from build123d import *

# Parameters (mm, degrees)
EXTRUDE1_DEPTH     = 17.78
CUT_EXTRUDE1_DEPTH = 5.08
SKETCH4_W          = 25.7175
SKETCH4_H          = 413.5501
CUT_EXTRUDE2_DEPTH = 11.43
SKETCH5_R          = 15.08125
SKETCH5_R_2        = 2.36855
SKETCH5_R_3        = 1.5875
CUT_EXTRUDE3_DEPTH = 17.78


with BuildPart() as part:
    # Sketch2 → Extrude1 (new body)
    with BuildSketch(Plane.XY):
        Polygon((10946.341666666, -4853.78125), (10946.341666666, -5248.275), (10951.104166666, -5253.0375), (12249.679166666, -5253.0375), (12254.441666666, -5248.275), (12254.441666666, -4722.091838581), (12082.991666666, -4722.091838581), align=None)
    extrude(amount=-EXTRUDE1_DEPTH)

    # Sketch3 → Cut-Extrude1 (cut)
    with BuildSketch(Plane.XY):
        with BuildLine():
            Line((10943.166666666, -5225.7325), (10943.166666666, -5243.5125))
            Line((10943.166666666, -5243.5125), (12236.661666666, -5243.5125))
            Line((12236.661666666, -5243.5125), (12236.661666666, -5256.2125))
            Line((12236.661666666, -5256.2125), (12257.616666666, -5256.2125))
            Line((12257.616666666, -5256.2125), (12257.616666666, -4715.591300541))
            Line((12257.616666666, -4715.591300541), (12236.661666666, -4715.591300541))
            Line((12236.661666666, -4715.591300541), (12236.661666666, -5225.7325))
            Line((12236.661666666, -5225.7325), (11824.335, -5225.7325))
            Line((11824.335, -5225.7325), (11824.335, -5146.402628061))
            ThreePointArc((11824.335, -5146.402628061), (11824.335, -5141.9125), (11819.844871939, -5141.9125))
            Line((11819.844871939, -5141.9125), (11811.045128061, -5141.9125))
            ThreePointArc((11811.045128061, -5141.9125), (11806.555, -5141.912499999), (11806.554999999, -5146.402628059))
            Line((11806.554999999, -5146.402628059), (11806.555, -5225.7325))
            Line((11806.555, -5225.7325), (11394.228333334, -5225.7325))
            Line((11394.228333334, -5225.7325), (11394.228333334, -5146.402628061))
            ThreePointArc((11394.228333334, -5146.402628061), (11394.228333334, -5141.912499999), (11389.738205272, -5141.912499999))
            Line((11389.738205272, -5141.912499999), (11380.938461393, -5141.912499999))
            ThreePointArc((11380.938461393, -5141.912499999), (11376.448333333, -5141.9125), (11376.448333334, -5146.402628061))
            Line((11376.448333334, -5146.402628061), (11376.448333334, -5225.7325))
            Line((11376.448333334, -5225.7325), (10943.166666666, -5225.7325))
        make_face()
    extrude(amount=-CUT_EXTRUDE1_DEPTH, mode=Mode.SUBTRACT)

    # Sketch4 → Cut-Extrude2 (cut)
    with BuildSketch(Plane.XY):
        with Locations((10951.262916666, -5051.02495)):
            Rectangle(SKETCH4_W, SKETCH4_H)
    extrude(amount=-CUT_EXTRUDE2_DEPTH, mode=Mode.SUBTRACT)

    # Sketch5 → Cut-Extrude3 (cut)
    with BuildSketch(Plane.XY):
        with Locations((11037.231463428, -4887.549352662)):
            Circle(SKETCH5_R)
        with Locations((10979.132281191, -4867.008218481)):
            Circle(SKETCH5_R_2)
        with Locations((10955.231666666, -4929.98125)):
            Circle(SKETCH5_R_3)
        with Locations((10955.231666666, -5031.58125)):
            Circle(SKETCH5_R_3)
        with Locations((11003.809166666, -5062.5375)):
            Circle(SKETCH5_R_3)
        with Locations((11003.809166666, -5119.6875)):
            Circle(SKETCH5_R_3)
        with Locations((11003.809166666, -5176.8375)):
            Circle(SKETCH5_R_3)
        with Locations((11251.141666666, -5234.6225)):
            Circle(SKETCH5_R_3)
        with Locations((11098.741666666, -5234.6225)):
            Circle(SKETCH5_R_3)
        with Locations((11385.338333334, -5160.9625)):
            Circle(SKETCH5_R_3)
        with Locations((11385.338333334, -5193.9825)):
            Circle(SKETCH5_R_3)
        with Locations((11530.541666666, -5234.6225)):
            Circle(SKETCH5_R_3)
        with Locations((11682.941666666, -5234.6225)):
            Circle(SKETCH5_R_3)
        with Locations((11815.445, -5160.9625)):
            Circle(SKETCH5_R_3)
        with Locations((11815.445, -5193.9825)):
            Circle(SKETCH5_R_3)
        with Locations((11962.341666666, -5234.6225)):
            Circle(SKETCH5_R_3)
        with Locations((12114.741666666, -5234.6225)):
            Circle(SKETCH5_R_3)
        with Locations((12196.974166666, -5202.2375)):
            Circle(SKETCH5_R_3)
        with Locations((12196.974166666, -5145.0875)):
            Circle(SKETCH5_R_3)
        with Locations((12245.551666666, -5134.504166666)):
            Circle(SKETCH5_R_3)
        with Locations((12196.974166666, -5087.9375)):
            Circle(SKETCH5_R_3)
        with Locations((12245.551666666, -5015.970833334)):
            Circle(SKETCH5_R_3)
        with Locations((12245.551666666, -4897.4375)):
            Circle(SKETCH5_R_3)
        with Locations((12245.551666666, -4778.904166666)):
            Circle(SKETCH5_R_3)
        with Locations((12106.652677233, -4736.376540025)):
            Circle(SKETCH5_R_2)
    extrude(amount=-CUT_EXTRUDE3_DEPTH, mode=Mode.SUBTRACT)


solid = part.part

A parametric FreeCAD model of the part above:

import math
import FreeCAD as App
import Part
import Sketcher
from FreeCAD import Vector
Q = App.Units.Quantity

doc = App.newDocument("Part")
body = doc.addObject("PartDesign::Body", "Body")

sketch1 = body.newObject("Sketcher::SketchObject", "Sketch")
sketch1.AttachmentSupport = (doc.getObject("XY_Plane"), [""])
sketch1.MapMode = "FlatFace"
sketch1.addGeometry(Part.LineSegment(Vector(10946.341667, -4853.78125, 0), Vector(10946.341667, -5248.275, 0)), False)
sketch1.addGeometry(Part.LineSegment(Vector(10946.341667, -5248.275, 0), Vector(10951.104167, -5253.0375, 0)), False)
sketch1.addGeometry(Part.LineSegment(Vector(10951.104167, -5253.0375, 0), Vector(12249.679167, -5253.0375, 0)), False)
sketch1.addGeometry(Part.LineSegment(Vector(12249.679167, -5253.0375, 0), Vector(12254.441667, -5248.275, 0)), False)
sketch1.addGeometry(Part.LineSegment(Vector(12254.441667, -5248.275, 0), Vector(12254.441667, -4722.091839, 0)), False)
sketch1.addGeometry(Part.LineSegment(Vector(12254.441667, -4722.091839, 0), Vector(12082.991667, -4722.091839, 0)), False)
sketch1.addGeometry(Part.LineSegment(Vector(12082.991667, -4722.091839, 0), Vector(10946.341667, -4853.78125, 0)), False)
sketch1.addConstraint(Sketcher.Constraint("Coincident", 0, 2, 1, 1))
sketch1.addConstraint(Sketcher.Constraint("Coincident", 1, 2, 2, 1))
sketch1.addConstraint(Sketcher.Constraint("Coincident", 2, 2, 3, 1))
sketch1.addConstraint(Sketcher.Constraint("Coincident", 3, 2, 4, 1))
sketch1.addConstraint(Sketcher.Constraint("Coincident", 4, 2, 5, 1))
sketch1.addConstraint(Sketcher.Constraint("Coincident", 5, 2, 6, 1))
sketch1.addConstraint(Sketcher.Constraint("Coincident", 6, 2, 0, 1))
sketch1.addConstraint(Sketcher.Constraint("Vertical", 0))
sketch1.addConstraint(Sketcher.Constraint("Horizontal", 2))
sketch1.addConstraint(Sketcher.Constraint("Vertical", 4))
sketch1.addConstraint(Sketcher.Constraint("Horizontal", 5))
sketch1.addConstraint(Sketcher.Constraint("Perpendicular", 1, 3))
sketch1.addConstraint(Sketcher.Constraint("Horizontal", 0, 2, 3, 2))
sketch1.addConstraint(Sketcher.Constraint("Equal", 1, 3))
sketch1.addConstraint(Sketcher.Constraint("DistanceX", 5, 2, 5, 1, Q("6.75 in")))
sketch1.addConstraint(Sketcher.Constraint("DistanceX", 0, 2, 3, 2, Q("51.5 in")))
sketch1.addConstraint(Sketcher.Constraint("DistanceX", 2, 1, 2, 2, Q("51.125 in")))
sketch1.addConstraint(Sketcher.Constraint("DistanceY", 0, 2, 0, 1, Q("15.53125 in")))
sketch1.addConstraint(Sketcher.Constraint("DistanceY", 0, 2, -1, 1, Q("206.625 in")))
sketch1.addConstraint(Sketcher.Constraint("DistanceY", 4, 1, 4, 2, 526.183161))
sketch1.addConstraint(Sketcher.Constraint("DistanceX", -1, 1, 0, 2, 10946.341667))
pad1 = body.newObject("PartDesign::Pad", "Pad")
pad1.Profile = sketch1
pad1.Length = Q("0.7 in")
pad1.Reversed = True

sketch2 = body.newObject("Sketcher::SketchObject", "Sketch001")
sketch2.AttachmentSupport = (doc.getObject("XY_Plane"), [""])
sketch2.MapMode = "FlatFace"
sketch2.addGeometry(Part.LineSegment(Vector(10943.166667, -5225.7325, 0), Vector(10943.166667, -5243.5125, 0)), False)
sketch2.addGeometry(Part.LineSegment(Vector(10943.166667, -5243.5125, 0), Vector(12236.661667, -5243.5125, 0)), False)
sketch2.addGeometry(Part.LineSegment(Vector(12236.661667, -5243.5125, 0), Vector(12236.661667, -5256.2125, 0)), False)
sketch2.addGeometry(Part.LineSegment(Vector(12236.661667, -5256.2125, 0), Vector(12257.616667, -5256.2125, 0)), False)
sketch2.addGeometry(Part.LineSegment(Vector(12257.616667, -5256.2125, 0), Vector(12257.616667, -4715.591301, 0)), False)
sketch2.addGeometry(Part.LineSegment(Vector(12257.616667, -4715.591301, 0), Vector(12236.661667, -4715.591301, 0)), False)
sketch2.addGeometry(Part.LineSegment(Vector(12236.661667, -4715.591301, 0), Vector(12236.661667, -5225.7325, 0)), False)
sketch2.addGeometry(Part.LineSegment(Vector(12236.661667, -5225.7325, 0), Vector(11824.335, -5225.7325, 0)), False)
sketch2.addGeometry(Part.LineSegment(Vector(11824.335, -5225.7325, 0), Vector(11824.335, -5146.402628, 0)), False)
sketch2.addGeometry(Part.ArcOfCircle(Part.Circle(Vector(11822.089936, -5144.157564, 0), Vector(0, 0, 1), 3.175), math.radians(-45), math.radians(135)), False)
sketch2.addGeometry(Part.LineSegment(Vector(11819.844872, -5141.9125, 0), Vector(11811.045128, -5141.9125, 0)), False)
sketch2.addGeometry(Part.ArcOfCircle(Part.Circle(Vector(11808.800064, -5144.157564, 0), Vector(0, 0, 1), 3.175), math.radians(45), math.radians(225)), False)
sketch2.addGeometry(Part.LineSegment(Vector(11806.555, -5146.402628, 0), Vector(11806.555, -5225.7325, 0)), False)
sketch2.addGeometry(Part.LineSegment(Vector(11806.555, -5225.7325, 0), Vector(11394.228333, -5225.7325, 0)), False)
sketch2.addGeometry(Part.LineSegment(Vector(11394.228333, -5225.7325, 0), Vector(11394.228333, -5146.402628, 0)), False)
sketch2.addGeometry(Part.ArcOfCircle(Part.Circle(Vector(11391.983269, -5144.157564, 0), Vector(0, 0, 1), 3.175), math.radians(-45), math.radians(135)), False)
sketch2.addGeometry(Part.LineSegment(Vector(11389.738205, -5141.9125, 0), Vector(11380.938461, -5141.9125, 0)), False)
sketch2.addGeometry(Part.ArcOfCircle(Part.Circle(Vector(11378.693397, -5144.157564, 0), Vector(0, 0, 1), 3.175), math.radians(45), math.radians(225)), False)
sketch2.addGeometry(Part.LineSegment(Vector(11376.448333, -5146.402628, 0), Vector(11376.448333, -5225.7325, 0)), False)
sketch2.addGeometry(Part.LineSegment(Vector(11376.448333, -5225.7325, 0), Vector(10943.166667, -5225.7325, 0)), False)
sketch2.addConstraint(Sketcher.Constraint("Coincident", 0, 2, 1, 1))
sketch2.addConstraint(Sketcher.Constraint("Coincident", 1, 2, 2, 1))
sketch2.addConstraint(Sketcher.Constraint("Coincident", 2, 2, 3, 1))
sketch2.addConstraint(Sketcher.Constraint("Coincident", 3, 2, 4, 1))
sketch2.addConstraint(Sketcher.Constraint("Coincident", 4, 2, 5, 1))
sketch2.addConstraint(Sketcher.Constraint("Coincident", 5, 2, 6, 1))
sketch2.addConstraint(Sketcher.Constraint("Coincident", 6, 2, 7, 1))
sketch2.addConstraint(Sketcher.Constraint("Coincident", 7, 2, 8, 1))
sketch2.addConstraint(Sketcher.Constraint("Coincident", 8, 2, 9, 1))
sketch2.addConstraint(Sketcher.Constraint("Coincident", 9, 2, 10, 1))
sketch2.addConstraint(Sketcher.Constraint("Coincident", 10, 2, 11, 1))
sketch2.addConstraint(Sketcher.Constraint("Coincident", 11, 2, 12, 1))
sketch2.addConstraint(Sketcher.Constraint("Coincident", 12, 2, 13, 1))
sketch2.addConstraint(Sketcher.Constraint("Coincident", 13, 2, 14, 1))
sketch2.addConstraint(Sketcher.Constraint("Coincident", 14, 2, 15, 1))
sketch2.addConstraint(Sketcher.Constraint("Coincident", 15, 2, 16, 1))
sketch2.addConstraint(Sketcher.Constraint("Coincident", 16, 2, 17, 1))
sketch2.addConstraint(Sketcher.Constraint("Coincident", 17, 2, 18, 1))
sketch2.addConstraint(Sketcher.Constraint("Coincident", 18, 2, 19, 1))
sketch2.addConstraint(Sketcher.Constraint("Coincident", 19, 2, 0, 1))
sketch2.addConstraint(Sketcher.Constraint("Vertical", 0))
sketch2.addConstraint(Sketcher.Constraint("Horizontal", 1))
sketch2.addConstraint(Sketcher.Constraint("Vertical", 2))
sketch2.addConstraint(Sketcher.Constraint("Horizontal", 3))
sketch2.addConstraint(Sketcher.Constraint("Vertical", 4))
sketch2.addConstraint(Sketcher.Constraint("Horizontal", 5))
sketch2.addConstraint(Sketcher.Constraint("Vertical", 6))
sketch2.addConstraint(Sketcher.Constraint("Horizontal", 7))
sketch2.addConstraint(Sketcher.Constraint("Vertical", 8))
sketch2.addConstraint(Sketcher.Constraint("Horizontal", 10))
sketch2.addConstraint(Sketcher.Constraint("Vertical", 12))
sketch2.addConstraint(Sketcher.Constraint("Horizontal", 13))
sketch2.addConstraint(Sketcher.Constraint("Vertical", 14))
sketch2.addConstraint(Sketcher.Constraint("Horizontal", 16))
sketch2.addConstraint(Sketcher.Constraint("Vertical", 18))
sketch2.addConstraint(Sketcher.Constraint("Horizontal", 19))
sketch2.addConstraint(Sketcher.Constraint("Equal", 9, 11))
sketch2.addConstraint(Sketcher.Constraint("Equal", 11, 15))
sketch2.addConstraint(Sketcher.Constraint("Equal", 15, 17))
sketch2.addConstraint(Sketcher.Constraint("Horizontal", 9, 3, 11, 3))
sketch2.addConstraint(Sketcher.Constraint("Horizontal", 11, 3, 15, 3))
sketch2.addConstraint(Sketcher.Constraint("Horizontal", 15, 3, 17, 3))
sketch2.addConstraint(Sketcher.Constraint("Horizontal", 8, 2, 11, 2))
sketch2.addConstraint(Sketcher.Constraint("Horizontal", 7, 2, 12, 2))
sketch2.addConstraint(Sketcher.Constraint("Horizontal", 11, 2, 14, 2))
sketch2.addConstraint(Sketcher.Constraint("Horizontal", 10, 2, 15, 2))
sketch2.addConstraint(Sketcher.Constraint("Horizontal", 14, 2, 17, 2))
sketch2.addConstraint(Sketcher.Constraint("Horizontal", 13, 2, 18, 2))
sketch2.addConstraint(Sketcher.Constraint("Vertical", 2, 2, 5, 2))
sketch2.addConstraint(Sketcher.Constraint("Equal", 7, 13))
sketch2.addConstraint(Sketcher.Constraint("Equal", 10, 16))
sketch2.addConstraint(Sketcher.Constraint("DistanceY", 0, 2, 0, 1, Q("0.7 in")))
sketch2.addConstraint(Sketcher.Constraint("DistanceY", 2, 2, 2, 1, Q("0.5 in")))
sketch2.addConstraint(Sketcher.Constraint("Radius", 9, Q("0.125 in")))
sketch2.addConstraint(Sketcher.Constraint("DistanceY", 7, 2, 9, 2, Q("3.3 in")))
sketch2.addConstraint(Sketcher.Constraint("DistanceX", 11, 2, 8, 2, Q("0.7 in")))
sketch2.addConstraint(Sketcher.Constraint("DistanceX", 1, 1, 1, 2, Q("50.925 in")))
sketch2.addConstraint(Sketcher.Constraint("DistanceX", 3, 1, 3, 2, Q("0.825 in")))
sketch2.addConstraint(Sketcher.Constraint("DistanceY", 0, 2, -1, 1, Q("206.4375 in")))
sketch2.addConstraint(Sketcher.Constraint("DistanceX", -1, 1, 7, 2, Q("465.525 in")))
sketch2.addConstraint(Sketcher.Constraint("DistanceY", 4, 1, 4, 2, 540.621199))
sketch2.addConstraint(Sketcher.Constraint("DistanceY", 8, 1, 8, 2, 79.329872))
sketch2.addConstraint(Sketcher.Constraint("DistanceX", 7, 2, 7, 1, 412.326667))
sketch2.addConstraint(Sketcher.Constraint("DistanceX", -1, 1, 15, 3, 11391.983269))
pocket1 = body.newObject("PartDesign::Pocket", "Pocket")
pocket1.Profile = sketch2
pocket1.Length = Q("0.2 in")

sketch3 = body.newObject("Sketcher::SketchObject", "Sketch002")
sketch3.AttachmentSupport = (doc.getObject("XY_Plane"), [""])
sketch3.MapMode = "FlatFace"
sketch3.addGeometry(Part.LineSegment(Vector(10938.404167, -4844.2499, 0), Vector(10938.404167, -5257.8, 0)), False)
sketch3.addGeometry(Part.LineSegment(Vector(10938.404167, -5257.8, 0), Vector(10964.121667, -5257.8, 0)), False)
sketch3.addGeometry(Part.LineSegment(Vector(10964.121667, -5257.8, 0), Vector(10964.121667, -4844.2499, 0)), False)
sketch3.addGeometry(Part.LineSegment(Vector(10964.121667, -4844.2499, 0), Vector(10938.404167, -4844.2499, 0)), False)
sketch3.addConstraint(Sketcher.Constraint("Coincident", 0, 2, 1, 1))
sketch3.addConstraint(Sketcher.Constraint("Coincident", 1, 2, 2, 1))
sketch3.addConstraint(Sketcher.Constraint("Coincident", 2, 2, 3, 1))
sketch3.addConstraint(Sketcher.Constraint("Coincident", 3, 2, 0, 1))
sketch3.addConstraint(Sketcher.Constraint("Vertical", 0))
sketch3.addConstraint(Sketcher.Constraint("Horizontal", 1))
sketch3.addConstraint(Sketcher.Constraint("Vertical", 2))
sketch3.addConstraint(Sketcher.Constraint("Horizontal", 3))
sketch3.addConstraint(Sketcher.Constraint("DistanceY", 0, 2, -1, 1, Q("207 in")))
sketch3.addConstraint(Sketcher.Constraint("DistanceX", 1, 1, 1, 2, Q("1.0125 in")))
sketch3.addConstraint(Sketcher.Constraint("DistanceY", 0, 2, 0, 1, Q("16.2815 in")))
sketch3.addConstraint(Sketcher.Constraint("DistanceX", -1, 1, 0, 2, 10938.404167))
pocket2 = body.newObject("PartDesign::Pocket", "Pocket001")
pocket2.Profile = sketch3
pocket2.Length = Q("0.45 in")

sketch4 = body.newObject("Sketcher::SketchObject", "Sketch003")
sketch4.AttachmentSupport = (doc.getObject("XY_Plane"), [""])
sketch4.MapMode = "FlatFace"
sketch4.addGeometry(Part.Circle(Vector(11037.231463, -4887.549353, 0), Vector(0, 0, 1), 15.08125), False)
sketch4.addGeometry(Part.Circle(Vector(10979.132281, -4867.008218, 0), Vector(0, 0, 1), 2.36855), False)
sketch4.addGeometry(Part.Circle(Vector(10955.231667, -4929.98125, 0), Vector(0, 0, 1), 1.5875), False)
sketch4.addGeometry(Part.Circle(Vector(10955.231667, -5031.58125, 0), Vector(0, 0, 1), 1.5875), False)
sketch4.addGeometry(Part.Circle(Vector(11003.809167, -5062.5375, 0), Vector(0, 0, 1), 1.5875), False)
sketch4.addGeometry(Part.Circle(Vector(11003.809167, -5119.6875, 0), Vector(0, 0, 1), 1.5875), False)
sketch4.addGeometry(Part.Circle(Vector(11003.809167, -5176.8375, 0), Vector(0, 0, 1), 1.5875), False)
sketch4.addGeometry(Part.Circle(Vector(11251.141667, -5234.6225, 0), Vector(0, 0, 1), 1.5875), False)
sketch4.addGeometry(Part.Circle(Vector(11098.741667, -5234.6225, 0), Vector(0, 0, 1), 1.5875), False)
sketch4.addGeometry(Part.Circle(Vector(11385.338333, -5160.9625, 0), Vector(0, 0, 1), 1.5875), False)
sketch4.addGeometry(Part.Circle(Vector(11385.338333, -5193.9825, 0), Vector(0, 0, 1), 1.5875), False)
sketch4.addGeometry(Part.Circle(Vector(11530.541667, -5234.6225, 0), Vector(0, 0, 1), 1.5875), False)
sketch4.addGeometry(Part.Circle(Vector(11682.941667, -5234.6225, 0), Vector(0, 0, 1), 1.5875), False)
sketch4.addGeometry(Part.Circle(Vector(11815.445, -5160.9625, 0), Vector(0, 0, 1), 1.5875), False)
sketch4.addGeometry(Part.Circle(Vector(11815.445, -5193.9825, 0), Vector(0, 0, 1), 1.5875), False)
sketch4.addGeometry(Part.Circle(Vector(11962.341667, -5234.6225, 0), Vector(0, 0, 1), 1.5875), False)
sketch4.addGeometry(Part.Circle(Vector(12114.741667, -5234.6225, 0), Vector(0, 0, 1), 1.5875), False)
sketch4.addGeometry(Part.Circle(Vector(12196.974167, -5202.2375, 0), Vector(0, 0, 1), 1.5875), False)
sketch4.addGeometry(Part.Circle(Vector(12196.974167, -5145.0875, 0), Vector(0, 0, 1), 1.5875), False)
sketch4.addGeometry(Part.Circle(Vector(12245.551667, -5134.504167, 0), Vector(0, 0, 1), 1.5875), False)
sketch4.addGeometry(Part.Circle(Vector(12196.974167, -5087.9375, 0), Vector(0, 0, 1), 1.5875), False)
sketch4.addGeometry(Part.Circle(Vector(12245.551667, -5015.970833, 0), Vector(0, 0, 1), 1.5875), False)
sketch4.addGeometry(Part.Circle(Vector(12245.551667, -4897.4375, 0), Vector(0, 0, 1), 1.5875), False)
sketch4.addGeometry(Part.Circle(Vector(12245.551667, -4778.904167, 0), Vector(0, 0, 1), 1.5875), False)
sketch4.addGeometry(Part.Circle(Vector(12106.652677, -4736.37654, 0), Vector(0, 0, 1), 2.36855), False)
sketch4.addConstraint(Sketcher.Constraint("Equal", 2, 3))
sketch4.addConstraint(Sketcher.Constraint("Equal", 3, 4))
sketch4.addConstraint(Sketcher.Constraint("Equal", 4, 5))
sketch4.addConstraint(Sketcher.Constraint("Equal", 5, 6))
sketch4.addConstraint(Sketcher.Constraint("Equal", 6, 7))
sketch4.addConstraint(Sketcher.Constraint("Equal", 7, 8))
sketch4.addConstraint(Sketcher.Constraint("Equal", 8, 9))
sketch4.addConstraint(Sketcher.Constraint("Equal", 9, 10))
sketch4.addConstraint(Sketcher.Constraint("Equal", 10, 11))
sketch4.addConstraint(Sketcher.Constraint("Equal", 11, 12))
sketch4.addConstraint(Sketcher.Constraint("Equal", 12, 13))
sketch4.addConstraint(Sketcher.Constraint("Equal", 13, 14))
sketch4.addConstraint(Sketcher.Constraint("Equal", 14, 15))
sketch4.addConstraint(Sketcher.Constraint("Equal", 15, 16))
sketch4.addConstraint(Sketcher.Constraint("Equal", 16, 17))
sketch4.addConstraint(Sketcher.Constraint("Equal", 17, 18))
sketch4.addConstraint(Sketcher.Constraint("Equal", 18, 19))
sketch4.addConstraint(Sketcher.Constraint("Equal", 19, 20))
sketch4.addConstraint(Sketcher.Constraint("Equal", 20, 21))
sketch4.addConstraint(Sketcher.Constraint("Equal", 21, 22))
sketch4.addConstraint(Sketcher.Constraint("Equal", 22, 23))
sketch4.addConstraint(Sketcher.Constraint("Equal", 1, 24))
sketch4.addConstraint(Sketcher.Constraint("Horizontal", 7, 3, 8, 3))
sketch4.addConstraint(Sketcher.Constraint("Horizontal", 8, 3, 11, 3))
sketch4.addConstraint(Sketcher.Constraint("Horizontal", 11, 3, 12, 3))
sketch4.addConstraint(Sketcher.Constraint("Horizontal", 9, 3, 13, 3))
sketch4.addConstraint(Sketcher.Constraint("Horizontal", 10, 3, 14, 3))
sketch4.addConstraint(Sketcher.Constraint("Horizontal", 12, 3, 15, 3))
sketch4.addConstraint(Sketcher.Constraint("Horizontal", 15, 3, 16, 3))
sketch4.addConstraint(Sketcher.Constraint("Vertical", 2, 3, 3, 3))
sketch4.addConstraint(Sketcher.Constraint("Vertical", 4, 3, 5, 3))
sketch4.addConstraint(Sketcher.Constraint("Vertical", 5, 3, 6, 3))
sketch4.addConstraint(Sketcher.Constraint("Vertical", 9, 3, 10, 3))
sketch4.addConstraint(Sketcher.Constraint("Vertical", 13, 3, 14, 3))
sketch4.addConstraint(Sketcher.Constraint("Vertical", 17, 3, 18, 3))
sketch4.addConstraint(Sketcher.Constraint("Vertical", 18, 3, 20, 3))
sketch4.addConstraint(Sketcher.Constraint("Vertical", 19, 3, 21, 3))
sketch4.addConstraint(Sketcher.Constraint("Vertical", 21, 3, 22, 3))
sketch4.addConstraint(Sketcher.Constraint("Vertical", 22, 3, 23, 3))
sketch4.addConstraint(Sketcher.Constraint("Diameter", 0, Q("1.1875 in")))
sketch4.addConstraint(Sketcher.Constraint("Diameter", 2, Q("0.125 in")))
sketch4.addConstraint(Sketcher.Constraint("DistanceY", 3, 3, 2, 3, Q("4 in")))
sketch4.addConstraint(Sketcher.Constraint("DistanceX", 8, 3, 7, 3, Q("6 in")))
sketch4.addConstraint(Sketcher.Constraint("DistanceX", 7, 3, 11, 3, Q("11 in")))
sketch4.addConstraint(Sketcher.Constraint("DistanceX", 11, 3, 12, 3, Q("6 in")))
sketch4.addConstraint(Sketcher.Constraint("DistanceX", 12, 3, 15, 3, Q("11 in")))
sketch4.addConstraint(Sketcher.Constraint("DistanceX", 15, 3, 16, 3, Q("6 in")))
sketch4.addConstraint(Sketcher.Constraint("DistanceY", 17, 3, 22, 3, Q("12 in")))
sketch4.addConstraint(Sketcher.Constraint("DistanceY", 19, 3, 23, 3, Q("14 in")))
sketch4.addConstraint(Sketcher.Constraint("Diameter", 1, Q("0.1865 in")))
sketch4.addConstraint(Sketcher.Constraint("DistanceY", 6, 3, 4, 3, Q("4.5 in")))
sketch4.addConstraint(Sketcher.Constraint("DistanceY", 7, 3, 9, 3, Q("2.9 in")))
sketch4.addConstraint(Sketcher.Constraint("DistanceY", 10, 3, 9, 3, Q("1.3 in")))
sketch4.addConstraint(Sketcher.Constraint("DistanceY", 17, 3, 20, 3, Q("4.5 in")))
sketch4.addConstraint(Sketcher.Constraint("DistanceY", 5, 3, 4, 3, Q("2.25 in")))
sketch4.addConstraint(Sketcher.Constraint("DistanceX", 3, 3, 7, 3, Q("11.65 in")))
sketch4.addConstraint(Sketcher.Constraint("DistanceY", 17, 3, 18, 3, Q("2.25 in")))
sketch4.addConstraint(Sketcher.Constraint("DistanceX", 16, 3, 19, 3, Q("5.15 in")))
sketch4.addConstraint(Sketcher.Constraint("DistanceY", 2, 3, -1, 1, Q("194.09375 in")))
sketch4.addConstraint(Sketcher.Constraint("DistanceY", 4, 3, -1, 1, Q("199.3125 in")))
sketch4.addConstraint(Sketcher.Constraint("DistanceY", 9, 3, -1, 1, Q("203.1875 in")))
sketch4.addConstraint(Sketcher.Constraint("DistanceX", -1, 1, 13, 3, Q("465.175 in")))
sketch4.addConstraint(Sketcher.Constraint("DistanceY", 17, 3, -1, 1, Q("204.8125 in")))
sketch4.addConstraint(Sketcher.Constraint("DistanceX", 3, 3, 4, 3, Q("1.9125 in")))
sketch4.addConstraint(Sketcher.Constraint("DistanceX", 16, 3, 17, 3, Q("3.2375 in")))
sketch4.addConstraint(Sketcher.Constraint("DistanceX", -1, 1, 1, 3, 10979.132281))
sketch4.addConstraint(Sketcher.Constraint("DistanceY", 1, 3, -1, 1, 4867.008218))
sketch4.addConstraint(Sketcher.Constraint("DistanceY", 24, 3, -1, 1, 4736.37654))
sketch4.addConstraint(Sketcher.Constraint("DistanceX", 24, 3, 23, 3, 138.898989))
sketch4.addConstraint(Sketcher.Constraint("DistanceX", -1, 1, 0, 3, 11037.231463))
sketch4.addConstraint(Sketcher.Constraint("DistanceY", 0, 3, -1, 1, 4887.549353))
sketch4.addConstraint(Sketcher.Constraint("DistanceX", -1, 1, 2, 3, 10955.231667))
sketch4.addConstraint(Sketcher.Constraint("DistanceX", -1, 1, 9, 3, 11385.338333))
sketch4.addConstraint(Sketcher.Constraint("DistanceY", 19, 3, -1, 1, 5134.504167))
sketch4.addConstraint(Sketcher.Constraint("DistanceY", 21, 3, -1, 1, 5015.970833))
pocket3 = body.newObject("PartDesign::Pocket", "Pocket002")
pocket3.Profile = sketch4
pocket3.Length = Q("0.7 in")

doc.recompute()
